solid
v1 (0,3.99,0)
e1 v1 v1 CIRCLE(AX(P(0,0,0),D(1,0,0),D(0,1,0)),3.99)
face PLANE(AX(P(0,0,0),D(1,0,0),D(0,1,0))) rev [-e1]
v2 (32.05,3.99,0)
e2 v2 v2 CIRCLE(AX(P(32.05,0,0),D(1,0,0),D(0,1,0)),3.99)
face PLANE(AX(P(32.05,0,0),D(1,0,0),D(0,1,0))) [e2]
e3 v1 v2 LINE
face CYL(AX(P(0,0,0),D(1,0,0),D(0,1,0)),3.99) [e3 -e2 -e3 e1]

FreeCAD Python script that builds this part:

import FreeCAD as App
import Part
import Sketcher
Q = App.Units.Quantity


def add_polygon(sketch, points):
    """Adds a closed chain of lines whose ends are joined by coincident constraints."""
    first, n = sketch.GeometryCount, len(points)
    for a, b in zip(points, points[1:] + points[:1]):
        sketch.addGeometry(Part.LineSegment(App.Vector(*a, 0), App.Vector(*b, 0)), False)
    for i in range(n):
        sketch.addConstraint(Sketcher.Constraint("Coincident", first + i, 2, first + (i + 1) % n, 1))

doc = App.newDocument("Part")
body = doc.addObject("PartDesign::Body", "Body")

# Sketch on XY plane
sketch1 = body.newObject("Sketcher::SketchObject", "Sketch")
sketch1.AttachmentSupport = (doc.getObject("XY_Plane"), [""])
sketch1.MapMode = "FlatFace"
add_polygon(sketch1, [(32.05, 3.99), (0, 3.99), (0, 0), (32.05, 0)])  # lines 0-3
sketch1.addConstraint(Sketcher.Constraint("Horizontal", 0))
sketch1.addConstraint(Sketcher.Constraint("Vertical", 1))
sketch1.addConstraint(Sketcher.Constraint("Horizontal", 2))
sketch1.addConstraint(Sketcher.Constraint("Vertical", 3))
sketch1.addConstraint(Sketcher.Constraint("Coincident", 1, 2, -1, 1))
sketch1.addConstraint(Sketcher.Constraint("DistanceX", 0, 2, 0, 1, Q("32.05 mm")))
sketch1.addConstraint(Sketcher.Constraint("DistanceY", 1, 2, 1, 1, Q("3.99 mm")))
revolution = body.newObject("PartDesign::Revolution", "Revolution")
revolution.Profile = sketch1
revolution.ReferenceAxis = (sketch1, ["H_Axis"])
revolution.Angle = 360

doc.recompute()
